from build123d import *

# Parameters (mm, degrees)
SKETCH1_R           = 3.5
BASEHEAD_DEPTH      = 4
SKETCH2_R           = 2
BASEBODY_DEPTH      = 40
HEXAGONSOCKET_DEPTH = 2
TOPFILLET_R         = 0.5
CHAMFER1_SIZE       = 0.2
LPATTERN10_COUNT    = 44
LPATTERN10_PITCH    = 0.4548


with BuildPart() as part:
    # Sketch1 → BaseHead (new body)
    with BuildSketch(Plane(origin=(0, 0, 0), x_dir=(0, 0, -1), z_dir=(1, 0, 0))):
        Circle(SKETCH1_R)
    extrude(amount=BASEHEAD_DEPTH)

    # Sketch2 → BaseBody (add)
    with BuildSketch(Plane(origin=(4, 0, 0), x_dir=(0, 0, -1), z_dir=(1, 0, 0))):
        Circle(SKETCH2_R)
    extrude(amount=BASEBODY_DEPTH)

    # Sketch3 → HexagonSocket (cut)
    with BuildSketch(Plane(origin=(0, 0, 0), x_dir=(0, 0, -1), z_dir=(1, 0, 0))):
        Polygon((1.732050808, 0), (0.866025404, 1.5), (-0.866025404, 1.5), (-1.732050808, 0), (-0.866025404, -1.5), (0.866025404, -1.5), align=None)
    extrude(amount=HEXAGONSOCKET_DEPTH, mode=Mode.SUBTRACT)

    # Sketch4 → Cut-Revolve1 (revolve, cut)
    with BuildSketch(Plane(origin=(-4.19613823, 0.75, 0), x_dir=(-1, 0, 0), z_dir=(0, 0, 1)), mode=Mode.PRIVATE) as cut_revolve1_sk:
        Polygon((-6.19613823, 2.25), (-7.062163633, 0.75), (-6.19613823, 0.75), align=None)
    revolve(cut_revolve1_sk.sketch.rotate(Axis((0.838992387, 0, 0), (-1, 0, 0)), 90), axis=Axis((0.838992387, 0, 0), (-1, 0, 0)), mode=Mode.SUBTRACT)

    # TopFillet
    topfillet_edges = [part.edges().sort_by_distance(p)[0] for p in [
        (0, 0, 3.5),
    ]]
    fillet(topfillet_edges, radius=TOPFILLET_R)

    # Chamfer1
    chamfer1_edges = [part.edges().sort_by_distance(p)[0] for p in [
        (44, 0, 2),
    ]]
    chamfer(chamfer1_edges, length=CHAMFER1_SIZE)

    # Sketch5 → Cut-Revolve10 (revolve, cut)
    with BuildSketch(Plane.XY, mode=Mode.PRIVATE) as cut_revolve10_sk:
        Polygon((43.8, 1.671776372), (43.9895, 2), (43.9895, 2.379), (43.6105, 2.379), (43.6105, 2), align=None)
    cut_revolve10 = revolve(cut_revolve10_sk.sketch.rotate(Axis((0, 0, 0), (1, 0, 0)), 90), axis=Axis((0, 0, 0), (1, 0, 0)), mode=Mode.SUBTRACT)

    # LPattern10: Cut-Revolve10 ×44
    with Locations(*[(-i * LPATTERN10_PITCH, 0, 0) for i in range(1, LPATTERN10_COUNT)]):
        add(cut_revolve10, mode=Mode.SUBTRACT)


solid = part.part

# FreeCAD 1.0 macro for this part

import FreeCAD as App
import Part
import Sketcher
from FreeCAD import Vector
Q = App.Units.Quantity


def edges_at(feature, points):
    """Names of the edges that pass closest to the given points."""
    edges = feature.Shape.Edges
    near = lambda p: min(range(len(edges)), key=lambda i: edges[i].distToShape(Part.Vertex(*p))[0])
    return sorted({f"Edge{near(p) + 1}" for p in points})

doc = App.newDocument("Part")
body = doc.addObject("PartDesign::Body", "Body")

# Sketch on YZ plane
sketch1 = body.newObject("Sketcher::SketchObject", "Sketch")
sketch1.AttachmentSupport = (doc.getObject("YZ_Plane"), [""])
sketch1.MapMode = "FlatFace"
sketch1.addGeometry(Part.Circle(Vector(0, 0, 0), Vector(0, 0, 1), 3.5), False)
sketch1.addConstraint([
    Sketcher.Constraint("Coincident", 0, 3, -1, 1),
    Sketcher.Constraint("Diameter", 0, 7.0),
])
pad1 = body.newObject("PartDesign::Pad", "Pad")
pad1.Profile = sketch1
pad1.Length = 4

# Sketch on YZ plane
sketch2 = body.newObject("Sketcher::SketchObject", "Sketch001")
sketch2.AttachmentSupport = (doc.getObject("YZ_Plane"), [""])
sketch2.MapMode = "FlatFace"
sketch2.AttachmentOffset = App.Placement(Vector(0, 0, 4), App.Rotation())
sketch2.addGeometry(Part.Circle(Vector(0, 0, 0), Vector(0, 0, 1), 2), False)
sketch2.addConstraint([
    Sketcher.Constraint("Coincident", 0, 3, -1, 1),
    Sketcher.Constraint("Diameter", 0, 4.0),
])
pad2 = body.newObject("PartDesign::Pad", "Pad001")
pad2.Profile = sketch2
pad2.Length = 40

# Sketch on YZ plane
sketch3 = body.newObject("Sketcher::SketchObject", "Sketch002")
sketch3.AttachmentSupport = (doc.getObject("YZ_Plane"), [""])
sketch3.MapMode = "FlatFace"
sketch3.addGeometry([
    Part.LineSegment(Vector(0, -1.7, 0), Vector(1.5, -0.9, 0)),  # 0
    Part.LineSegment(Vector(1.5, -0.9, 0), Vector(1.5, 0.9, 0)),  # 1
    Part.LineSegment(Vector(1.5, 0.9, 0), Vector(0, 1.7, 0)),  # 2
    Part.LineSegment(Vector(0, 1.7, 0), Vector(-1.5, 0.9, 0)),  # 3
    Part.LineSegment(Vector(-1.5, 0.9, 0), Vector(-1.5, -0.9, 0)),  # 4
    Part.LineSegment(Vector(-1.5, -0.9, 0), Vector(0, -1.7, 0)),  # 5
], False)
sketch3.addConstraint([
    Sketcher.Constraint("Coincident", 0, 2, 1, 1),
    Sketcher.Constraint("Coincident", 1, 2, 2, 1),
    Sketcher.Constraint("Coincident", 2, 2, 3, 1),
    Sketcher.Constraint("Coincident", 3, 2, 4, 1),
    Sketcher.Constraint("Coincident", 4, 2, 5, 1),
    Sketcher.Constraint("Coincident", 5, 2, 0, 1),
    Sketcher.Constraint("Vertical", 1),
    Sketcher.Constraint("Vertical", 4),
    Sketcher.Constraint("Symmetric", 0, 2, 3, 2, -1, 1),
    Sketcher.Constraint("Symmetric", 2, 2, 5, 2, -1, 1),
    Sketcher.Constraint("PointOnObject", 2, 2, -2),
    Sketcher.Constraint("Parallel", 2, 5),
    Sketcher.Constraint("Horizontal", 1, 2, 3, 2),
    Sketcher.Constraint("Angle", 0, Q("30 deg")),
    Sketcher.Constraint("DistanceX", 3, 2, 1, 2, 3.0),
    Sketcher.Constraint("DistanceY", 1, 1, 1, 2, 1.732051),
])
pocket1 = body.newObject("PartDesign::Pocket", "Pocket")
pocket1.Profile = sketch3
pocket1.Length = 2
pocket1.Reversed = True

# Sketch on XY plane
sketch4 = body.newObject("Sketcher::SketchObject", "Sketch003")
sketch4.AttachmentSupport = (doc.getObject("XY_Plane"), [""])
sketch4.MapMode = "FlatFace"
sketch4.addGeometry([
    Part.LineSegment(Vector(2, -1.5, 0), Vector(2.9, 0, 0)),
    Part.LineSegment(Vector(2.9, 0, 0), Vector(2, 0, 0)),
    Part.LineSegment(Vector(2, 0, 0), Vector(2, -1.5, 0)),
], False)
sketch4.addConstraint([
    Sketcher.Constraint("Coincident", 0, 2, 1, 1),
    Sketcher.Constraint("Coincident", 1, 2, 2, 1),
    Sketcher.Constraint("Coincident", 2, 2, 0, 1),
    Sketcher.Constraint("Horizontal", 1),
    Sketcher.Constraint("Vertical", 2),
    Sketcher.Constraint("PointOnObject", 0, 2, -1),
    Sketcher.Constraint("Angle", 0, Q("60 deg")),
    Sketcher.Constraint("DistanceY", 2, 2, 2, 1, 1.5),
    Sketcher.Constraint("DistanceX", -1, 1, 1, 2, 2.0),
])
groove = body.newObject("PartDesign::Groove", "Groove")
groove.Profile = sketch4
groove.ReferenceAxis = (sketch4, ["H_Axis"])
groove.Angle = 360
doc.recompute()

fillet = body.newObject("PartDesign::Fillet", "Fillet")
fillet.Base = (groove, edges_at(groove, [(0, 0, 3.5)]))
fillet.Radius = 0.5
doc.recompute()

chamfer = body.newObject("PartDesign::Chamfer", "Chamfer")
chamfer.Base = (fillet, edges_at(fillet, [(44, 0, 2)]))
chamfer.Size = 0.2

# Sketch on XY plane
sketch5 = body.newObject("Sketcher::SketchObject", "Sketch004")
sketch5.AttachmentSupport = (doc.getObject("XY_Plane"), [""])
sketch5.MapMode = "FlatFace"
sketch5.addGeometry([
    Part.LineSegment(Vector(43.8, 1.67, 0), Vector(43.99, 2, 0)),  # 0
    Part.LineSegment(Vector(43.99, 2, 0), Vector(43.99, 2.38, 0)),  # 1
    Part.LineSegment(Vector(43.99, 2.38, 0), Vector(43.61, 2.38, 0)),  # 2
    Part.LineSegment(Vector(43.61, 2.38, 0), Vector(43.61, 2, 0)),  # 3
    Part.LineSegment(Vector(43.61, 2, 0), Vector(43.8, 1.67, 0)),  # 4
], False)
sketch5.addConstraint([
    Sketcher.Constraint("Coincident", 0, 2, 1, 1),
    Sketcher.Constraint("Coincident", 1, 2, 2, 1),
    Sketcher.Constraint("Coincident", 2, 2, 3, 1),
    Sketcher.Constraint("Coincident", 3, 2, 4, 1),
    Sketcher.Constraint("Coincident", 4, 2, 0, 1),
    Sketcher.Constraint("Vertical", 1),
    Sketcher.Constraint("Horizontal", 2),
    Sketcher.Constraint("Vertical", 3),
    Sketcher.Constraint("Horizontal", 0, 2, 3, 2),
    Sketcher.Constraint("Equal", 2, 1),
    Sketcher.Constraint("Equal", 0, 4),
    Sketcher.Constraint("Angle", 0, Q("60 deg")),
    Sketcher.Constraint("DistanceY", -1, 1, 0, 2, 2.0),
    Sketcher.Constraint("DistanceX", -1, 1, 4, 2, 43.8),
    Sketcher.Constraint("DistanceX", 2, 2, 2, 1, 0.379),
])
groove2 = body.newObject("PartDesign::Groove", "Groove001")
groove2.Profile = sketch5
groove2.ReferenceAxis = (sketch5, ["H_Axis"])
groove2.Angle = 360
doc.recompute()

linearpattern = body.newObject("PartDesign::LinearPattern", "LinearPattern")
linearpattern.Originals = [groove2]
linearpattern.Direction = (doc.getObject("X_Axis"), [""])
linearpattern.Mode = "offset"
linearpattern.Offset = 0.4548
linearpattern.Occurrences = 44
linearpattern.Reversed = True
body.Tip = linearpattern

doc.recompute()
